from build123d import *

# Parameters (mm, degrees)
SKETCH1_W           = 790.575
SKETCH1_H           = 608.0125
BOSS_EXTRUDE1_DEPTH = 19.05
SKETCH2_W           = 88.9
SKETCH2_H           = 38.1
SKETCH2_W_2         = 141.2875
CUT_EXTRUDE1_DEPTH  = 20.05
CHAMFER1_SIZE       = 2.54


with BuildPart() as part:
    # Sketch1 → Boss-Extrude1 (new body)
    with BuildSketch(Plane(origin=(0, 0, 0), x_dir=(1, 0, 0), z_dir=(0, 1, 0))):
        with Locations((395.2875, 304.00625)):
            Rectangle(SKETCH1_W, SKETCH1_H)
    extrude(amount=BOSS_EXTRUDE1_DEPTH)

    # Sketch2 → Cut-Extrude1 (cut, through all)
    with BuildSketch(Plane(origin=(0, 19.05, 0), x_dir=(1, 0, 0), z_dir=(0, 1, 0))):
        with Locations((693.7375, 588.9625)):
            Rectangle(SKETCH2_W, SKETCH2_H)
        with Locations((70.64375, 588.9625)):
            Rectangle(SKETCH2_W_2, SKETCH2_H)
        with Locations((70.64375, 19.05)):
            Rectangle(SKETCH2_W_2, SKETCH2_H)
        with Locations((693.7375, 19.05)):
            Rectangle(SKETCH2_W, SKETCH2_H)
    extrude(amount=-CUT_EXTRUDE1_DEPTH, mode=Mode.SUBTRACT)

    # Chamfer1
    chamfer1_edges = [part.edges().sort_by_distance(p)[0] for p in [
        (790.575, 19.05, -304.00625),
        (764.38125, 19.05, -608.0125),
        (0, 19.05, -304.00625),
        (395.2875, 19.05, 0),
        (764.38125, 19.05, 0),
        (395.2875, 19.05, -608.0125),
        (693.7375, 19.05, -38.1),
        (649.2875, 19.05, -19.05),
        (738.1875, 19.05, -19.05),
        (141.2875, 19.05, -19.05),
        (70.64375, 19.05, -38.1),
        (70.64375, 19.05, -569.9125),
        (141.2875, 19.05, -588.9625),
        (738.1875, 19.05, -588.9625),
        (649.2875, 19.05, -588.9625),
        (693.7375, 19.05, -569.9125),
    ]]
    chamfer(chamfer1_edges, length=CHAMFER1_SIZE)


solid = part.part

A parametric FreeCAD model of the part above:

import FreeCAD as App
import Part
import Sketcher
from FreeCAD import Vector
Q = App.Units.Quantity


def edges_at(feature, points):
    """Names of the edges that pass closest to the given points."""
    edges = feature.Shape.Edges
    near = lambda p: min(range(len(edges)), key=lambda i: edges[i].distToShape(Part.Vertex(*p))[0])
    return sorted({f"Edge{near(p) + 1}" for p in points})

doc = App.newDocument("Part")
body = doc.addObject("PartDesign::Body", "Body")

sketch1 = body.newObject("Sketcher::SketchObject", "Sketch")
sketch1.AttachmentSupport = (doc.getObject("XZ_Plane"), [""])
sketch1.MapMode = "FlatFace"
sketch1.addGeometry(Part.LineSegment(Vector(0, -608.0125, 0), Vector(0, 0, 0)), False)
sketch1.addGeometry(Part.LineSegment(Vector(0, 0, 0), Vector(790.575, 0, 0)), False)
sketch1.addGeometry(Part.LineSegment(Vector(790.575, 0, 0), Vector(790.575, -608.0125, 0)), False)
sketch1.addGeometry(Part.LineSegment(Vector(790.575, -608.0125, 0), Vector(0, -608.0125, 0)), False)
sketch1.addConstraint(Sketcher.Constraint("Coincident", 0, 2, 1, 1))
sketch1.addConstraint(Sketcher.Constraint("Coincident", 1, 2, 2, 1))
sketch1.addConstraint(Sketcher.Constraint("Coincident", 2, 2, 3, 1))
sketch1.addConstraint(Sketcher.Constraint("Coincident", 3, 2, 0, 1))
sketch1.addConstraint(Sketcher.Constraint("Vertical", 0))
sketch1.addConstraint(Sketcher.Constraint("Horizontal", 1))
sketch1.addConstraint(Sketcher.Constraint("Vertical", 2))
sketch1.addConstraint(Sketcher.Constraint("Horizontal", 3))
sketch1.addConstraint(Sketcher.Constraint("Coincident", 0, 2, -1, 1))
sketch1.addConstraint(Sketcher.Constraint("DistanceX", 1, 1, 1, 2, Q("31.125 in")))
sketch1.addConstraint(Sketcher.Constraint("DistanceY", 0, 1, 0, 2, Q("23.9375 in")))
pad1 = body.newObject("PartDesign::Pad", "Pad")
pad1.Profile = sketch1
pad1.Length = Q("0.75 in")
pad1.Reversed = True

sketch2 = body.newObject("Sketcher::SketchObject", "Sketch001")
sketch2.AttachmentSupport = (doc.getObject("XZ_Plane"), [""])
sketch2.MapMode = "FlatFace"
sketch2.AttachmentOffset = App.Placement(Vector(0, 0, -0.75 * 25.4), App.Rotation())
sketch2.addGeometry(Part.LineSegment(Vector(649.2875, -608.0125, 0), Vector(649.2875, -569.9125, 0)), False)
sketch2.addGeometry(Part.LineSegment(Vector(649.2875, -569.9125, 0), Vector(738.1875, -569.9125, 0)), False)
sketch2.addGeometry(Part.LineSegment(Vector(738.1875, -569.9125, 0), Vector(738.1875, -608.0125, 0)), False)
sketch2.addGeometry(Part.LineSegment(Vector(738.1875, -608.0125, 0), Vector(649.2875, -608.0125, 0)), False)
sketch2.addGeometry(Part.LineSegment(Vector(0, -608.0125, 0), Vector(0, -569.9125, 0)), False)
sketch2.addGeometry(Part.LineSegment(Vector(0, -569.9125, 0), Vector(141.2875, -569.9125, 0)), False)
sketch2.addGeometry(Part.LineSegment(Vector(141.2875, -569.9125, 0), Vector(141.2875, -608.0125, 0)), False)
sketch2.addGeometry(Part.LineSegment(Vector(141.2875, -608.0125, 0), Vector(0, -608.0125, 0)), False)
sketch2.addGeometry(Part.LineSegment(Vector(0, -38.1, 0), Vector(0, 0, 0)), False)
sketch2.addGeometry(Part.LineSegment(Vector(0, 0, 0), Vector(141.2875, 0, 0)), False)
sketch2.addGeometry(Part.LineSegment(Vector(141.2875, 0, 0), Vector(141.2875, -38.1, 0)), False)
sketch2.addGeometry(Part.LineSegment(Vector(141.2875, -38.1, 0), Vector(0, -38.1, 0)), False)
sketch2.addGeometry(Part.LineSegment(Vector(649.2875, -38.1, 0), Vector(649.2875, 0, 0)), False)
sketch2.addGeometry(Part.LineSegment(Vector(649.2875, 0, 0), Vector(738.1875, 0, 0)), False)
sketch2.addGeometry(Part.LineSegment(Vector(738.1875, 0, 0), Vector(738.1875, -38.1, 0)), False)
sketch2.addGeometry(Part.LineSegment(Vector(738.1875, -38.1, 0), Vector(649.2875, -38.1, 0)), False)
sketch2.addConstraint(Sketcher.Constraint("Coincident", 0, 2, 1, 1))
sketch2.addConstraint(Sketcher.Constraint("Coincident", 1, 2, 2, 1))
sketch2.addConstraint(Sketcher.Constraint("Coincident", 2, 2, 3, 1))
sketch2.addConstraint(Sketcher.Constraint("Coincident", 3, 2, 0, 1))
sketch2.addConstraint(Sketcher.Constraint("Coincident", 4, 2, 5, 1))
sketch2.addConstraint(Sketcher.Constraint("Coincident", 5, 2, 6, 1))
sketch2.addConstraint(Sketcher.Constraint("Coincident", 6, 2, 7, 1))
sketch2.addConstraint(Sketcher.Constraint("Coincident", 7, 2, 4, 1))
sketch2.addConstraint(Sketcher.Constraint("Coincident", 8, 2, 9, 1))
sketch2.addConstraint(Sketcher.Constraint("Coincident", 9, 2, 10, 1))
sketch2.addConstraint(Sketcher.Constraint("Coincident", 10, 2, 11, 1))
sketch2.addConstraint(Sketcher.Constraint("Coincident", 11, 2, 8, 1))
sketch2.addConstraint(Sketcher.Constraint("Coincident", 12, 2, 13, 1))
sketch2.addConstraint(Sketcher.Constraint("Coincident", 13, 2, 14, 1))
sketch2.addConstraint(Sketcher.Constraint("Coincident", 14, 2, 15, 1))
sketch2.addConstraint(Sketcher.Constraint("Coincident", 15, 2, 12, 1))
sketch2.addConstraint(Sketcher.Constraint("Vertical", 0))
sketch2.addConstraint(Sketcher.Constraint("Horizontal", 1))
sketch2.addConstraint(Sketcher.Constraint("Vertical", 2))
sketch2.addConstraint(Sketcher.Constraint("Horizontal", 3))
sketch2.addConstraint(Sketcher.Constraint("Vertical", 4))
sketch2.addConstraint(Sketcher.Constraint("Horizontal", 5))
sketch2.addConstraint(Sketcher.Constraint("Vertical", 6))
sketch2.addConstraint(Sketcher.Constraint("Horizontal", 7))
sketch2.addConstraint(Sketcher.Constraint("Vertical", 8))
sketch2.addConstraint(Sketcher.Constraint("Horizontal", 9))
sketch2.addConstraint(Sketcher.Constraint("Vertical", 10))
sketch2.addConstraint(Sketcher.Constraint("Horizontal", 11))
sketch2.addConstraint(Sketcher.Constraint("Vertical", 12))
sketch2.addConstraint(Sketcher.Constraint("Horizontal", 13))
sketch2.addConstraint(Sketcher.Constraint("Vertical", 14))
sketch2.addConstraint(Sketcher.Constraint("Horizontal", 15))
sketch2.addConstraint(Sketcher.Constraint("Coincident", 8, 2, -1, 1))
sketch2.addConstraint(Sketcher.Constraint("PointOnObject", 4, 2, -2))
sketch2.addConstraint(Sketcher.Constraint("PointOnObject", 12, 2, -1))
sketch2.addConstraint(Sketcher.Constraint("Horizontal", 1, 2, 4, 2))
sketch2.addConstraint(Sketcher.Constraint("Horizontal", 3, 2, 6, 2))
sketch2.addConstraint(Sketcher.Constraint("Horizontal", 11, 2, 14, 2))
sketch2.addConstraint(Sketcher.Constraint("Vertical", 6, 2, 9, 2))
sketch2.addConstraint(Sketcher.Constraint("Vertical", 3, 2, 12, 2))
sketch2.addConstraint(Sketcher.Constraint("Vertical", 2, 2, 13, 2))
sketch2.addConstraint(Sketcher.Constraint("Equal", 6, 8))
sketch2.addConstraint(Sketcher.Constraint("DistanceX", 1, 1, 1, 2, Q("3.5 in")))
sketch2.addConstraint(Sketcher.Constraint("DistanceY", 0, 1, 0, 2, Q("1.5 in")))
sketch2.addConstraint(Sketcher.Constraint("DistanceX", 5, 2, 0, 2, Q("20 in")))
sketch2.addConstraint(Sketcher.Constraint("DistanceX", 5, 1, 5, 2, Q("5.5625 in")))
sketch2.addConstraint(Sketcher.Constraint("DistanceY", 0, 2, -1, 1, Q("22.4375 in")))
pocket1 = body.newObject("PartDesign::Pocket", "Pocket")
pocket1.Profile = sketch2
pocket1.Type = "ThroughAll"
pocket1.Reversed = True
doc.recompute()

chamfer = body.newObject("PartDesign::Chamfer", "Chamfer")
chamfer.Base = (pocket1, edges_at(pocket1, [
    (790.575, 19.05, -304.006),
    (764.381, 19.05, -608.013),
    (0, 19.05, -304.006),
    (395.288, 19.05, 0),
    (764.381, 19.05, 0),
    (395.288, 19.05, -608.013),
    (693.737, 19.05, -38.1),
    (649.288, 19.05, -19.05),
    (738.188, 19.05, -19.05),
    (141.287, 19.05, -19.05),
    (70.644, 19.05, -38.1),
    (70.644, 19.05, -569.913),
    (141.287, 19.05, -588.962),
    (738.188, 19.05, -588.962),
    (649.288, 19.05, -588.962),
    (693.737, 19.05, -569.913),
]))
chamfer.Size = Q("0.1 in")

doc.recompute()
